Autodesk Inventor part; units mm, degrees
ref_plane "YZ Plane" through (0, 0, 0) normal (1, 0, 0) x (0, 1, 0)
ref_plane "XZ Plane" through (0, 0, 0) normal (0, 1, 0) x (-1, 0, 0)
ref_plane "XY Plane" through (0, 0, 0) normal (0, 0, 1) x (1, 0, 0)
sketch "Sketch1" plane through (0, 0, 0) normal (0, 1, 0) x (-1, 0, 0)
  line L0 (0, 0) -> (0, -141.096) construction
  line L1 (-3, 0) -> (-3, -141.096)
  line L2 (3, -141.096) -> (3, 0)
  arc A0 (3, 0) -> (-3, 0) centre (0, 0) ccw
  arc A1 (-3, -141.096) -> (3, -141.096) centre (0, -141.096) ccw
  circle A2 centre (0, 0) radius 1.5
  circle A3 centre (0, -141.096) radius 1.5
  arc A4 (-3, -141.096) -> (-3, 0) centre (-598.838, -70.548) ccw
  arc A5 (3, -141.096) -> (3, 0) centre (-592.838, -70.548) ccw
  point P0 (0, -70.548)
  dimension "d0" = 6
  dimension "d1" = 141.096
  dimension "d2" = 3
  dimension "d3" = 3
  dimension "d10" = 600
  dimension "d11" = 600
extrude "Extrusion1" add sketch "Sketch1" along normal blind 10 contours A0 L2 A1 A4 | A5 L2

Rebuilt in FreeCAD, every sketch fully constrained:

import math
import FreeCAD as App
import Part
import Sketcher
from FreeCAD import Vector

doc = App.newDocument("Part")
body = doc.addObject("PartDesign::Body", "Body")

sketch1 = doc.addObject("Sketcher::SketchObject", "Sketch")
body.addObject(sketch1)
sketch1.AttachmentSupport = (doc.XZ_Plane, [""])
sketch1.MapMode = "FlatFace"
sketch1.addGeometry([
    Part.ArcOfCircle(Part.Circle(Vector(0, 0, 0), Vector(0, 0, 1), 3), math.radians(0), math.radians(180)),
    Part.ArcOfCircle(Part.Circle(Vector(598.838, -70.548, 0), Vector(0, 0, 1), 599.999952), math.radians(173.247541), math.radians(186.752459)),
    Part.ArcOfCircle(Part.Circle(Vector(0, -141.096, 0), Vector(0, 0, 1), 3), math.radians(180), math.radians(360)),
    Part.ArcOfCircle(Part.Circle(Vector(592.838, -70.548, 0), Vector(0, 0, 1), 599.999952), math.radians(173.247541), math.radians(186.752459)),
    Part.Circle(Vector(0, -141.096, 0), Vector(0, 0, 1), 1.5),
    Part.Circle(Vector(0, 0, 0), Vector(0, 0, 1), 1.5),
], False)
sketch1.addConstraint([
    Sketcher.Constraint("Coincident", 0, 1, 1, 1),
    Sketcher.Constraint("Coincident", 1, 2, 2, 2),
    Sketcher.Constraint("Coincident", 2, 1, 3, 2),
    Sketcher.Constraint("Coincident", 3, 1, 0, 2),
    Sketcher.Constraint("Coincident", 0, 3, -1, 1),
    Sketcher.Constraint("Coincident", 5, 3, -1, 1),
    Sketcher.Constraint("Coincident", 4, 3, 2, 3),
    Sketcher.Constraint("Equal", 0, 2),
    Sketcher.Constraint("Equal", 1, 3),
    Sketcher.Constraint("Equal", 4, 5),
    Sketcher.Constraint("Symmetric", 1, 2, 2, 1, -2),
    Sketcher.Constraint("PointOnObject", 0, 1, -1),
    Sketcher.Constraint("PointOnObject", 3, 1, -1),
    Sketcher.Constraint("Horizontal", 4, 3, 1, 2),
    Sketcher.Constraint("Diameter", 4, 3.0),
    Sketcher.Constraint("Radius", 0, 3.0),
    Sketcher.Constraint("Radius", 1, 600.0),
    Sketcher.Constraint("DistanceY", 2, 3, -1, 1, 141.096),
])
pad1 = doc.addObject("PartDesign::Pad", "Pad")
body.addObject(pad1)
pad1.Profile = sketch1
pad1.Length = 10
pad1.Reversed = True

doc.recompute()
